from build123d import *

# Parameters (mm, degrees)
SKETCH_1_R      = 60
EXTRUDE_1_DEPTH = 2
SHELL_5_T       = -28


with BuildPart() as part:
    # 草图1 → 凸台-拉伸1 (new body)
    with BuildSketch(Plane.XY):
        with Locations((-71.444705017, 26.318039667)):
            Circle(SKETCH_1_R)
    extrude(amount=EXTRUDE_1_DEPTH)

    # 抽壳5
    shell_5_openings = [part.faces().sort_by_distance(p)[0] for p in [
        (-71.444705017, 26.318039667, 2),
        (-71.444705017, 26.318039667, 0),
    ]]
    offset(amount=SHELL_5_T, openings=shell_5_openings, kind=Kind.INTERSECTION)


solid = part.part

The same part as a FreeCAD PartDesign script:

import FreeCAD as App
import Part
import Sketcher
from FreeCAD import Vector
Q = App.Units.Quantity


def faces_at(feature, points):
    """Names of the faces that lie closest to the given points."""
    faces = feature.Shape.Faces
    near = lambda p: min(range(len(faces)), key=lambda i: faces[i].distToShape(Part.Vertex(*p))[0])
    return sorted({f"Face{near(p) + 1}" for p in points})

doc = App.newDocument("Part")
params = doc.addObject("Spreadsheet::Sheet", "Params")
for row, (alias, value) in enumerate([
    ("sketch1_diameter", "120 mm"),
    ("pad1_length", "2 mm"),
    ("thickness_wall", "28 mm"),
], start=1):
    params.set(f"A{row}", alias)
    params.set(f"B{row}", "=" + value)
    params.setAlias(f"B{row}", alias)

body = doc.addObject("PartDesign::Body", "Body")

sketch1 = body.newObject("Sketcher::SketchObject", "Sketch")
sketch1.AttachmentSupport = (doc.getObject("XY_Plane"), [""])
sketch1.MapMode = "FlatFace"
sketch1.addGeometry(Part.Circle(Vector(-71.444705, 26.31804, 0), Vector(0, 0, 1), 60), False)
sketch1.addConstraint([
    Sketcher.Constraint("Diameter", 0, Q("120 mm")),
    Sketcher.Constraint("DistanceY", -1, 1, 0, 3, Q("26.31804 mm")),
    Sketcher.Constraint("DistanceX", 0, 3, -1, 1, Q("71.444705 mm")),
])
sketch1.setExpression("Constraints[0]", "Params.sketch1_diameter")
pad1 = body.newObject("PartDesign::Pad", "Pad")
pad1.Profile = sketch1
pad1.setExpression("Length", "Params.pad1_length")
doc.recompute()

thickness = body.newObject("PartDesign::Thickness", "Thickness")
thickness.Base = (pad1, faces_at(pad1, [(-71.445, 26.318, 2), (-71.445, 26.318, 0)]))
thickness.setExpression("Value", "Params.thickness_wall")
thickness.Reversed = True
thickness.Join = "Intersection"

doc.recompute()
